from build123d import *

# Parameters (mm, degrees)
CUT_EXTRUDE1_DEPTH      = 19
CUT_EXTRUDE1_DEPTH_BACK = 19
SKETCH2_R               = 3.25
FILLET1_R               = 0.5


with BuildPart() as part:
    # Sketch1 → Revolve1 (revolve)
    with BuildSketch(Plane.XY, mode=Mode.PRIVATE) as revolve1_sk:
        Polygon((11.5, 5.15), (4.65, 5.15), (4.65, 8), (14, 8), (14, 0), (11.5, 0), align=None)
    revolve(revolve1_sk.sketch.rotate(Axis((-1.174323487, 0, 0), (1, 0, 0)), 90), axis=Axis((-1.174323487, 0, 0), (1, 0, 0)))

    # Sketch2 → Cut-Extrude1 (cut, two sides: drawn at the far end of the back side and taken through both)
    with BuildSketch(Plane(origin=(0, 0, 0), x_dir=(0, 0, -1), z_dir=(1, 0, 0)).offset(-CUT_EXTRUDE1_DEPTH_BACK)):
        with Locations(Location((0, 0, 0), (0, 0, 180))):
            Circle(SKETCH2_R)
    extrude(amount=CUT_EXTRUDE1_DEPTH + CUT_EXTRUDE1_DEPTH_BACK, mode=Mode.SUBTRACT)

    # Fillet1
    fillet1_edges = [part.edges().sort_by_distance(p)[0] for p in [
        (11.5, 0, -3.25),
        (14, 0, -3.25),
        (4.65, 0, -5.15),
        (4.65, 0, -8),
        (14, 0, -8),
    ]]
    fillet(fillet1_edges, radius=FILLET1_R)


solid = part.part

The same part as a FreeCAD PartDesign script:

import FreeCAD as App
import Part
import Sketcher
Q = App.Units.Quantity


def edges_at(feature, points):
    """Names of the edges that pass closest to the given points."""
    edges = feature.Shape.Edges
    near = lambda p: min(range(len(edges)), key=lambda i: edges[i].distToShape(Part.Vertex(*p))[0])
    return sorted({f"Edge{near(p) + 1}" for p in points})

doc = App.newDocument("Part")
body = doc.addObject("PartDesign::Body", "Body")

sketch1 = body.newObject("Sketcher::SketchObject", "Sketch")
sketch1.AttachmentSupport = (doc.getObject("XY_Plane"), [""])
sketch1.MapMode = "FlatFace"
sketch1.addGeometry([
    Part.LineSegment(App.Vector(4.7, 5.2, 0), App.Vector(11.5, 5.2, 0)),
    Part.LineSegment(App.Vector(11.5, 5.2, 0), App.Vector(11.5, 0, 0)),
    Part.LineSegment(App.Vector(11.5, 0, 0), App.Vector(14, 0, 0)),
    Part.LineSegment(App.Vector(14, 0, 0), App.Vector(14, 8, 0)),
    Part.LineSegment(App.Vector(14, 8, 0), App.Vector(4.7, 8, 0)),
    Part.LineSegment(App.Vector(4.7, 8, 0), App.Vector(4.7, 5.2, 0)),
], False)
sketch1.addConstraint([
    Sketcher.Constraint("Coincident", 0, 2, 1, 1),
    Sketcher.Constraint("Coincident", 1, 2, 2, 1),
    Sketcher.Constraint("Coincident", 2, 2, 3, 1),
    Sketcher.Constraint("Coincident", 3, 2, 4, 1),
    Sketcher.Constraint("Coincident", 4, 2, 5, 1),
    Sketcher.Constraint("Coincident", 5, 2, 0, 1),
    Sketcher.Constraint("Horizontal", 0),
    Sketcher.Constraint("Vertical", 1),
    Sketcher.Constraint("Horizontal", 2),
    Sketcher.Constraint("Vertical", 3),
    Sketcher.Constraint("Horizontal", 4),
    Sketcher.Constraint("Vertical", 5),
    Sketcher.Constraint("PointOnObject", 1, 2, -1),
    Sketcher.Constraint("DistanceY", 3, 1, 3, 2, Q("8 mm")),
    Sketcher.Constraint("DistanceX", 2, 1, 2, 2, Q("2.5 mm")),
    Sketcher.Constraint("DistanceX", -1, 1, 2, 2, Q("14 mm")),
    Sketcher.Constraint("DistanceX", 0, 1, 0, 2, Q("6.85 mm")),
    Sketcher.Constraint("DistanceY", 1, 2, 1, 1, Q("5.15 mm")),
])
revolution = body.newObject("PartDesign::Revolution", "Revolution")
revolution.Profile = sketch1
revolution.ReferenceAxis = (sketch1, ["H_Axis"])
revolution.Angle = 360

sketch2 = body.newObject("Sketcher::SketchObject", "Sketch001")
sketch2.AttachmentSupport = (doc.getObject("YZ_Plane"), [""])
sketch2.MapMode = "FlatFace"
sketch2.addGeometry(Part.Circle(App.Vector(0, 0, 0), App.Vector(0, 0, 1), 3.2), False)
sketch2.addConstraint([
    Sketcher.Constraint("Coincident", 0, 3, -1, 1),
    Sketcher.Constraint("Diameter", 0, Q("6.5 mm")),
])
pocket1 = body.newObject("PartDesign::Pocket", "Pocket")
pocket1.Profile = sketch2
pocket1.Type = "ThroughAll"
pocket1.Midplane = True
doc.recompute()

fillet = body.newObject("PartDesign::Fillet", "Fillet")
fillet.Base = (pocket1, edges_at(pocket1, [
    (11.5, 0, -3.25),
    (14, 0, -3.25),
    (4.65, 0, -5.15),
    (4.65, 0, -8),
    (14, 0, -8),
]))
fillet.Radius = 0.5

doc.recompute()
